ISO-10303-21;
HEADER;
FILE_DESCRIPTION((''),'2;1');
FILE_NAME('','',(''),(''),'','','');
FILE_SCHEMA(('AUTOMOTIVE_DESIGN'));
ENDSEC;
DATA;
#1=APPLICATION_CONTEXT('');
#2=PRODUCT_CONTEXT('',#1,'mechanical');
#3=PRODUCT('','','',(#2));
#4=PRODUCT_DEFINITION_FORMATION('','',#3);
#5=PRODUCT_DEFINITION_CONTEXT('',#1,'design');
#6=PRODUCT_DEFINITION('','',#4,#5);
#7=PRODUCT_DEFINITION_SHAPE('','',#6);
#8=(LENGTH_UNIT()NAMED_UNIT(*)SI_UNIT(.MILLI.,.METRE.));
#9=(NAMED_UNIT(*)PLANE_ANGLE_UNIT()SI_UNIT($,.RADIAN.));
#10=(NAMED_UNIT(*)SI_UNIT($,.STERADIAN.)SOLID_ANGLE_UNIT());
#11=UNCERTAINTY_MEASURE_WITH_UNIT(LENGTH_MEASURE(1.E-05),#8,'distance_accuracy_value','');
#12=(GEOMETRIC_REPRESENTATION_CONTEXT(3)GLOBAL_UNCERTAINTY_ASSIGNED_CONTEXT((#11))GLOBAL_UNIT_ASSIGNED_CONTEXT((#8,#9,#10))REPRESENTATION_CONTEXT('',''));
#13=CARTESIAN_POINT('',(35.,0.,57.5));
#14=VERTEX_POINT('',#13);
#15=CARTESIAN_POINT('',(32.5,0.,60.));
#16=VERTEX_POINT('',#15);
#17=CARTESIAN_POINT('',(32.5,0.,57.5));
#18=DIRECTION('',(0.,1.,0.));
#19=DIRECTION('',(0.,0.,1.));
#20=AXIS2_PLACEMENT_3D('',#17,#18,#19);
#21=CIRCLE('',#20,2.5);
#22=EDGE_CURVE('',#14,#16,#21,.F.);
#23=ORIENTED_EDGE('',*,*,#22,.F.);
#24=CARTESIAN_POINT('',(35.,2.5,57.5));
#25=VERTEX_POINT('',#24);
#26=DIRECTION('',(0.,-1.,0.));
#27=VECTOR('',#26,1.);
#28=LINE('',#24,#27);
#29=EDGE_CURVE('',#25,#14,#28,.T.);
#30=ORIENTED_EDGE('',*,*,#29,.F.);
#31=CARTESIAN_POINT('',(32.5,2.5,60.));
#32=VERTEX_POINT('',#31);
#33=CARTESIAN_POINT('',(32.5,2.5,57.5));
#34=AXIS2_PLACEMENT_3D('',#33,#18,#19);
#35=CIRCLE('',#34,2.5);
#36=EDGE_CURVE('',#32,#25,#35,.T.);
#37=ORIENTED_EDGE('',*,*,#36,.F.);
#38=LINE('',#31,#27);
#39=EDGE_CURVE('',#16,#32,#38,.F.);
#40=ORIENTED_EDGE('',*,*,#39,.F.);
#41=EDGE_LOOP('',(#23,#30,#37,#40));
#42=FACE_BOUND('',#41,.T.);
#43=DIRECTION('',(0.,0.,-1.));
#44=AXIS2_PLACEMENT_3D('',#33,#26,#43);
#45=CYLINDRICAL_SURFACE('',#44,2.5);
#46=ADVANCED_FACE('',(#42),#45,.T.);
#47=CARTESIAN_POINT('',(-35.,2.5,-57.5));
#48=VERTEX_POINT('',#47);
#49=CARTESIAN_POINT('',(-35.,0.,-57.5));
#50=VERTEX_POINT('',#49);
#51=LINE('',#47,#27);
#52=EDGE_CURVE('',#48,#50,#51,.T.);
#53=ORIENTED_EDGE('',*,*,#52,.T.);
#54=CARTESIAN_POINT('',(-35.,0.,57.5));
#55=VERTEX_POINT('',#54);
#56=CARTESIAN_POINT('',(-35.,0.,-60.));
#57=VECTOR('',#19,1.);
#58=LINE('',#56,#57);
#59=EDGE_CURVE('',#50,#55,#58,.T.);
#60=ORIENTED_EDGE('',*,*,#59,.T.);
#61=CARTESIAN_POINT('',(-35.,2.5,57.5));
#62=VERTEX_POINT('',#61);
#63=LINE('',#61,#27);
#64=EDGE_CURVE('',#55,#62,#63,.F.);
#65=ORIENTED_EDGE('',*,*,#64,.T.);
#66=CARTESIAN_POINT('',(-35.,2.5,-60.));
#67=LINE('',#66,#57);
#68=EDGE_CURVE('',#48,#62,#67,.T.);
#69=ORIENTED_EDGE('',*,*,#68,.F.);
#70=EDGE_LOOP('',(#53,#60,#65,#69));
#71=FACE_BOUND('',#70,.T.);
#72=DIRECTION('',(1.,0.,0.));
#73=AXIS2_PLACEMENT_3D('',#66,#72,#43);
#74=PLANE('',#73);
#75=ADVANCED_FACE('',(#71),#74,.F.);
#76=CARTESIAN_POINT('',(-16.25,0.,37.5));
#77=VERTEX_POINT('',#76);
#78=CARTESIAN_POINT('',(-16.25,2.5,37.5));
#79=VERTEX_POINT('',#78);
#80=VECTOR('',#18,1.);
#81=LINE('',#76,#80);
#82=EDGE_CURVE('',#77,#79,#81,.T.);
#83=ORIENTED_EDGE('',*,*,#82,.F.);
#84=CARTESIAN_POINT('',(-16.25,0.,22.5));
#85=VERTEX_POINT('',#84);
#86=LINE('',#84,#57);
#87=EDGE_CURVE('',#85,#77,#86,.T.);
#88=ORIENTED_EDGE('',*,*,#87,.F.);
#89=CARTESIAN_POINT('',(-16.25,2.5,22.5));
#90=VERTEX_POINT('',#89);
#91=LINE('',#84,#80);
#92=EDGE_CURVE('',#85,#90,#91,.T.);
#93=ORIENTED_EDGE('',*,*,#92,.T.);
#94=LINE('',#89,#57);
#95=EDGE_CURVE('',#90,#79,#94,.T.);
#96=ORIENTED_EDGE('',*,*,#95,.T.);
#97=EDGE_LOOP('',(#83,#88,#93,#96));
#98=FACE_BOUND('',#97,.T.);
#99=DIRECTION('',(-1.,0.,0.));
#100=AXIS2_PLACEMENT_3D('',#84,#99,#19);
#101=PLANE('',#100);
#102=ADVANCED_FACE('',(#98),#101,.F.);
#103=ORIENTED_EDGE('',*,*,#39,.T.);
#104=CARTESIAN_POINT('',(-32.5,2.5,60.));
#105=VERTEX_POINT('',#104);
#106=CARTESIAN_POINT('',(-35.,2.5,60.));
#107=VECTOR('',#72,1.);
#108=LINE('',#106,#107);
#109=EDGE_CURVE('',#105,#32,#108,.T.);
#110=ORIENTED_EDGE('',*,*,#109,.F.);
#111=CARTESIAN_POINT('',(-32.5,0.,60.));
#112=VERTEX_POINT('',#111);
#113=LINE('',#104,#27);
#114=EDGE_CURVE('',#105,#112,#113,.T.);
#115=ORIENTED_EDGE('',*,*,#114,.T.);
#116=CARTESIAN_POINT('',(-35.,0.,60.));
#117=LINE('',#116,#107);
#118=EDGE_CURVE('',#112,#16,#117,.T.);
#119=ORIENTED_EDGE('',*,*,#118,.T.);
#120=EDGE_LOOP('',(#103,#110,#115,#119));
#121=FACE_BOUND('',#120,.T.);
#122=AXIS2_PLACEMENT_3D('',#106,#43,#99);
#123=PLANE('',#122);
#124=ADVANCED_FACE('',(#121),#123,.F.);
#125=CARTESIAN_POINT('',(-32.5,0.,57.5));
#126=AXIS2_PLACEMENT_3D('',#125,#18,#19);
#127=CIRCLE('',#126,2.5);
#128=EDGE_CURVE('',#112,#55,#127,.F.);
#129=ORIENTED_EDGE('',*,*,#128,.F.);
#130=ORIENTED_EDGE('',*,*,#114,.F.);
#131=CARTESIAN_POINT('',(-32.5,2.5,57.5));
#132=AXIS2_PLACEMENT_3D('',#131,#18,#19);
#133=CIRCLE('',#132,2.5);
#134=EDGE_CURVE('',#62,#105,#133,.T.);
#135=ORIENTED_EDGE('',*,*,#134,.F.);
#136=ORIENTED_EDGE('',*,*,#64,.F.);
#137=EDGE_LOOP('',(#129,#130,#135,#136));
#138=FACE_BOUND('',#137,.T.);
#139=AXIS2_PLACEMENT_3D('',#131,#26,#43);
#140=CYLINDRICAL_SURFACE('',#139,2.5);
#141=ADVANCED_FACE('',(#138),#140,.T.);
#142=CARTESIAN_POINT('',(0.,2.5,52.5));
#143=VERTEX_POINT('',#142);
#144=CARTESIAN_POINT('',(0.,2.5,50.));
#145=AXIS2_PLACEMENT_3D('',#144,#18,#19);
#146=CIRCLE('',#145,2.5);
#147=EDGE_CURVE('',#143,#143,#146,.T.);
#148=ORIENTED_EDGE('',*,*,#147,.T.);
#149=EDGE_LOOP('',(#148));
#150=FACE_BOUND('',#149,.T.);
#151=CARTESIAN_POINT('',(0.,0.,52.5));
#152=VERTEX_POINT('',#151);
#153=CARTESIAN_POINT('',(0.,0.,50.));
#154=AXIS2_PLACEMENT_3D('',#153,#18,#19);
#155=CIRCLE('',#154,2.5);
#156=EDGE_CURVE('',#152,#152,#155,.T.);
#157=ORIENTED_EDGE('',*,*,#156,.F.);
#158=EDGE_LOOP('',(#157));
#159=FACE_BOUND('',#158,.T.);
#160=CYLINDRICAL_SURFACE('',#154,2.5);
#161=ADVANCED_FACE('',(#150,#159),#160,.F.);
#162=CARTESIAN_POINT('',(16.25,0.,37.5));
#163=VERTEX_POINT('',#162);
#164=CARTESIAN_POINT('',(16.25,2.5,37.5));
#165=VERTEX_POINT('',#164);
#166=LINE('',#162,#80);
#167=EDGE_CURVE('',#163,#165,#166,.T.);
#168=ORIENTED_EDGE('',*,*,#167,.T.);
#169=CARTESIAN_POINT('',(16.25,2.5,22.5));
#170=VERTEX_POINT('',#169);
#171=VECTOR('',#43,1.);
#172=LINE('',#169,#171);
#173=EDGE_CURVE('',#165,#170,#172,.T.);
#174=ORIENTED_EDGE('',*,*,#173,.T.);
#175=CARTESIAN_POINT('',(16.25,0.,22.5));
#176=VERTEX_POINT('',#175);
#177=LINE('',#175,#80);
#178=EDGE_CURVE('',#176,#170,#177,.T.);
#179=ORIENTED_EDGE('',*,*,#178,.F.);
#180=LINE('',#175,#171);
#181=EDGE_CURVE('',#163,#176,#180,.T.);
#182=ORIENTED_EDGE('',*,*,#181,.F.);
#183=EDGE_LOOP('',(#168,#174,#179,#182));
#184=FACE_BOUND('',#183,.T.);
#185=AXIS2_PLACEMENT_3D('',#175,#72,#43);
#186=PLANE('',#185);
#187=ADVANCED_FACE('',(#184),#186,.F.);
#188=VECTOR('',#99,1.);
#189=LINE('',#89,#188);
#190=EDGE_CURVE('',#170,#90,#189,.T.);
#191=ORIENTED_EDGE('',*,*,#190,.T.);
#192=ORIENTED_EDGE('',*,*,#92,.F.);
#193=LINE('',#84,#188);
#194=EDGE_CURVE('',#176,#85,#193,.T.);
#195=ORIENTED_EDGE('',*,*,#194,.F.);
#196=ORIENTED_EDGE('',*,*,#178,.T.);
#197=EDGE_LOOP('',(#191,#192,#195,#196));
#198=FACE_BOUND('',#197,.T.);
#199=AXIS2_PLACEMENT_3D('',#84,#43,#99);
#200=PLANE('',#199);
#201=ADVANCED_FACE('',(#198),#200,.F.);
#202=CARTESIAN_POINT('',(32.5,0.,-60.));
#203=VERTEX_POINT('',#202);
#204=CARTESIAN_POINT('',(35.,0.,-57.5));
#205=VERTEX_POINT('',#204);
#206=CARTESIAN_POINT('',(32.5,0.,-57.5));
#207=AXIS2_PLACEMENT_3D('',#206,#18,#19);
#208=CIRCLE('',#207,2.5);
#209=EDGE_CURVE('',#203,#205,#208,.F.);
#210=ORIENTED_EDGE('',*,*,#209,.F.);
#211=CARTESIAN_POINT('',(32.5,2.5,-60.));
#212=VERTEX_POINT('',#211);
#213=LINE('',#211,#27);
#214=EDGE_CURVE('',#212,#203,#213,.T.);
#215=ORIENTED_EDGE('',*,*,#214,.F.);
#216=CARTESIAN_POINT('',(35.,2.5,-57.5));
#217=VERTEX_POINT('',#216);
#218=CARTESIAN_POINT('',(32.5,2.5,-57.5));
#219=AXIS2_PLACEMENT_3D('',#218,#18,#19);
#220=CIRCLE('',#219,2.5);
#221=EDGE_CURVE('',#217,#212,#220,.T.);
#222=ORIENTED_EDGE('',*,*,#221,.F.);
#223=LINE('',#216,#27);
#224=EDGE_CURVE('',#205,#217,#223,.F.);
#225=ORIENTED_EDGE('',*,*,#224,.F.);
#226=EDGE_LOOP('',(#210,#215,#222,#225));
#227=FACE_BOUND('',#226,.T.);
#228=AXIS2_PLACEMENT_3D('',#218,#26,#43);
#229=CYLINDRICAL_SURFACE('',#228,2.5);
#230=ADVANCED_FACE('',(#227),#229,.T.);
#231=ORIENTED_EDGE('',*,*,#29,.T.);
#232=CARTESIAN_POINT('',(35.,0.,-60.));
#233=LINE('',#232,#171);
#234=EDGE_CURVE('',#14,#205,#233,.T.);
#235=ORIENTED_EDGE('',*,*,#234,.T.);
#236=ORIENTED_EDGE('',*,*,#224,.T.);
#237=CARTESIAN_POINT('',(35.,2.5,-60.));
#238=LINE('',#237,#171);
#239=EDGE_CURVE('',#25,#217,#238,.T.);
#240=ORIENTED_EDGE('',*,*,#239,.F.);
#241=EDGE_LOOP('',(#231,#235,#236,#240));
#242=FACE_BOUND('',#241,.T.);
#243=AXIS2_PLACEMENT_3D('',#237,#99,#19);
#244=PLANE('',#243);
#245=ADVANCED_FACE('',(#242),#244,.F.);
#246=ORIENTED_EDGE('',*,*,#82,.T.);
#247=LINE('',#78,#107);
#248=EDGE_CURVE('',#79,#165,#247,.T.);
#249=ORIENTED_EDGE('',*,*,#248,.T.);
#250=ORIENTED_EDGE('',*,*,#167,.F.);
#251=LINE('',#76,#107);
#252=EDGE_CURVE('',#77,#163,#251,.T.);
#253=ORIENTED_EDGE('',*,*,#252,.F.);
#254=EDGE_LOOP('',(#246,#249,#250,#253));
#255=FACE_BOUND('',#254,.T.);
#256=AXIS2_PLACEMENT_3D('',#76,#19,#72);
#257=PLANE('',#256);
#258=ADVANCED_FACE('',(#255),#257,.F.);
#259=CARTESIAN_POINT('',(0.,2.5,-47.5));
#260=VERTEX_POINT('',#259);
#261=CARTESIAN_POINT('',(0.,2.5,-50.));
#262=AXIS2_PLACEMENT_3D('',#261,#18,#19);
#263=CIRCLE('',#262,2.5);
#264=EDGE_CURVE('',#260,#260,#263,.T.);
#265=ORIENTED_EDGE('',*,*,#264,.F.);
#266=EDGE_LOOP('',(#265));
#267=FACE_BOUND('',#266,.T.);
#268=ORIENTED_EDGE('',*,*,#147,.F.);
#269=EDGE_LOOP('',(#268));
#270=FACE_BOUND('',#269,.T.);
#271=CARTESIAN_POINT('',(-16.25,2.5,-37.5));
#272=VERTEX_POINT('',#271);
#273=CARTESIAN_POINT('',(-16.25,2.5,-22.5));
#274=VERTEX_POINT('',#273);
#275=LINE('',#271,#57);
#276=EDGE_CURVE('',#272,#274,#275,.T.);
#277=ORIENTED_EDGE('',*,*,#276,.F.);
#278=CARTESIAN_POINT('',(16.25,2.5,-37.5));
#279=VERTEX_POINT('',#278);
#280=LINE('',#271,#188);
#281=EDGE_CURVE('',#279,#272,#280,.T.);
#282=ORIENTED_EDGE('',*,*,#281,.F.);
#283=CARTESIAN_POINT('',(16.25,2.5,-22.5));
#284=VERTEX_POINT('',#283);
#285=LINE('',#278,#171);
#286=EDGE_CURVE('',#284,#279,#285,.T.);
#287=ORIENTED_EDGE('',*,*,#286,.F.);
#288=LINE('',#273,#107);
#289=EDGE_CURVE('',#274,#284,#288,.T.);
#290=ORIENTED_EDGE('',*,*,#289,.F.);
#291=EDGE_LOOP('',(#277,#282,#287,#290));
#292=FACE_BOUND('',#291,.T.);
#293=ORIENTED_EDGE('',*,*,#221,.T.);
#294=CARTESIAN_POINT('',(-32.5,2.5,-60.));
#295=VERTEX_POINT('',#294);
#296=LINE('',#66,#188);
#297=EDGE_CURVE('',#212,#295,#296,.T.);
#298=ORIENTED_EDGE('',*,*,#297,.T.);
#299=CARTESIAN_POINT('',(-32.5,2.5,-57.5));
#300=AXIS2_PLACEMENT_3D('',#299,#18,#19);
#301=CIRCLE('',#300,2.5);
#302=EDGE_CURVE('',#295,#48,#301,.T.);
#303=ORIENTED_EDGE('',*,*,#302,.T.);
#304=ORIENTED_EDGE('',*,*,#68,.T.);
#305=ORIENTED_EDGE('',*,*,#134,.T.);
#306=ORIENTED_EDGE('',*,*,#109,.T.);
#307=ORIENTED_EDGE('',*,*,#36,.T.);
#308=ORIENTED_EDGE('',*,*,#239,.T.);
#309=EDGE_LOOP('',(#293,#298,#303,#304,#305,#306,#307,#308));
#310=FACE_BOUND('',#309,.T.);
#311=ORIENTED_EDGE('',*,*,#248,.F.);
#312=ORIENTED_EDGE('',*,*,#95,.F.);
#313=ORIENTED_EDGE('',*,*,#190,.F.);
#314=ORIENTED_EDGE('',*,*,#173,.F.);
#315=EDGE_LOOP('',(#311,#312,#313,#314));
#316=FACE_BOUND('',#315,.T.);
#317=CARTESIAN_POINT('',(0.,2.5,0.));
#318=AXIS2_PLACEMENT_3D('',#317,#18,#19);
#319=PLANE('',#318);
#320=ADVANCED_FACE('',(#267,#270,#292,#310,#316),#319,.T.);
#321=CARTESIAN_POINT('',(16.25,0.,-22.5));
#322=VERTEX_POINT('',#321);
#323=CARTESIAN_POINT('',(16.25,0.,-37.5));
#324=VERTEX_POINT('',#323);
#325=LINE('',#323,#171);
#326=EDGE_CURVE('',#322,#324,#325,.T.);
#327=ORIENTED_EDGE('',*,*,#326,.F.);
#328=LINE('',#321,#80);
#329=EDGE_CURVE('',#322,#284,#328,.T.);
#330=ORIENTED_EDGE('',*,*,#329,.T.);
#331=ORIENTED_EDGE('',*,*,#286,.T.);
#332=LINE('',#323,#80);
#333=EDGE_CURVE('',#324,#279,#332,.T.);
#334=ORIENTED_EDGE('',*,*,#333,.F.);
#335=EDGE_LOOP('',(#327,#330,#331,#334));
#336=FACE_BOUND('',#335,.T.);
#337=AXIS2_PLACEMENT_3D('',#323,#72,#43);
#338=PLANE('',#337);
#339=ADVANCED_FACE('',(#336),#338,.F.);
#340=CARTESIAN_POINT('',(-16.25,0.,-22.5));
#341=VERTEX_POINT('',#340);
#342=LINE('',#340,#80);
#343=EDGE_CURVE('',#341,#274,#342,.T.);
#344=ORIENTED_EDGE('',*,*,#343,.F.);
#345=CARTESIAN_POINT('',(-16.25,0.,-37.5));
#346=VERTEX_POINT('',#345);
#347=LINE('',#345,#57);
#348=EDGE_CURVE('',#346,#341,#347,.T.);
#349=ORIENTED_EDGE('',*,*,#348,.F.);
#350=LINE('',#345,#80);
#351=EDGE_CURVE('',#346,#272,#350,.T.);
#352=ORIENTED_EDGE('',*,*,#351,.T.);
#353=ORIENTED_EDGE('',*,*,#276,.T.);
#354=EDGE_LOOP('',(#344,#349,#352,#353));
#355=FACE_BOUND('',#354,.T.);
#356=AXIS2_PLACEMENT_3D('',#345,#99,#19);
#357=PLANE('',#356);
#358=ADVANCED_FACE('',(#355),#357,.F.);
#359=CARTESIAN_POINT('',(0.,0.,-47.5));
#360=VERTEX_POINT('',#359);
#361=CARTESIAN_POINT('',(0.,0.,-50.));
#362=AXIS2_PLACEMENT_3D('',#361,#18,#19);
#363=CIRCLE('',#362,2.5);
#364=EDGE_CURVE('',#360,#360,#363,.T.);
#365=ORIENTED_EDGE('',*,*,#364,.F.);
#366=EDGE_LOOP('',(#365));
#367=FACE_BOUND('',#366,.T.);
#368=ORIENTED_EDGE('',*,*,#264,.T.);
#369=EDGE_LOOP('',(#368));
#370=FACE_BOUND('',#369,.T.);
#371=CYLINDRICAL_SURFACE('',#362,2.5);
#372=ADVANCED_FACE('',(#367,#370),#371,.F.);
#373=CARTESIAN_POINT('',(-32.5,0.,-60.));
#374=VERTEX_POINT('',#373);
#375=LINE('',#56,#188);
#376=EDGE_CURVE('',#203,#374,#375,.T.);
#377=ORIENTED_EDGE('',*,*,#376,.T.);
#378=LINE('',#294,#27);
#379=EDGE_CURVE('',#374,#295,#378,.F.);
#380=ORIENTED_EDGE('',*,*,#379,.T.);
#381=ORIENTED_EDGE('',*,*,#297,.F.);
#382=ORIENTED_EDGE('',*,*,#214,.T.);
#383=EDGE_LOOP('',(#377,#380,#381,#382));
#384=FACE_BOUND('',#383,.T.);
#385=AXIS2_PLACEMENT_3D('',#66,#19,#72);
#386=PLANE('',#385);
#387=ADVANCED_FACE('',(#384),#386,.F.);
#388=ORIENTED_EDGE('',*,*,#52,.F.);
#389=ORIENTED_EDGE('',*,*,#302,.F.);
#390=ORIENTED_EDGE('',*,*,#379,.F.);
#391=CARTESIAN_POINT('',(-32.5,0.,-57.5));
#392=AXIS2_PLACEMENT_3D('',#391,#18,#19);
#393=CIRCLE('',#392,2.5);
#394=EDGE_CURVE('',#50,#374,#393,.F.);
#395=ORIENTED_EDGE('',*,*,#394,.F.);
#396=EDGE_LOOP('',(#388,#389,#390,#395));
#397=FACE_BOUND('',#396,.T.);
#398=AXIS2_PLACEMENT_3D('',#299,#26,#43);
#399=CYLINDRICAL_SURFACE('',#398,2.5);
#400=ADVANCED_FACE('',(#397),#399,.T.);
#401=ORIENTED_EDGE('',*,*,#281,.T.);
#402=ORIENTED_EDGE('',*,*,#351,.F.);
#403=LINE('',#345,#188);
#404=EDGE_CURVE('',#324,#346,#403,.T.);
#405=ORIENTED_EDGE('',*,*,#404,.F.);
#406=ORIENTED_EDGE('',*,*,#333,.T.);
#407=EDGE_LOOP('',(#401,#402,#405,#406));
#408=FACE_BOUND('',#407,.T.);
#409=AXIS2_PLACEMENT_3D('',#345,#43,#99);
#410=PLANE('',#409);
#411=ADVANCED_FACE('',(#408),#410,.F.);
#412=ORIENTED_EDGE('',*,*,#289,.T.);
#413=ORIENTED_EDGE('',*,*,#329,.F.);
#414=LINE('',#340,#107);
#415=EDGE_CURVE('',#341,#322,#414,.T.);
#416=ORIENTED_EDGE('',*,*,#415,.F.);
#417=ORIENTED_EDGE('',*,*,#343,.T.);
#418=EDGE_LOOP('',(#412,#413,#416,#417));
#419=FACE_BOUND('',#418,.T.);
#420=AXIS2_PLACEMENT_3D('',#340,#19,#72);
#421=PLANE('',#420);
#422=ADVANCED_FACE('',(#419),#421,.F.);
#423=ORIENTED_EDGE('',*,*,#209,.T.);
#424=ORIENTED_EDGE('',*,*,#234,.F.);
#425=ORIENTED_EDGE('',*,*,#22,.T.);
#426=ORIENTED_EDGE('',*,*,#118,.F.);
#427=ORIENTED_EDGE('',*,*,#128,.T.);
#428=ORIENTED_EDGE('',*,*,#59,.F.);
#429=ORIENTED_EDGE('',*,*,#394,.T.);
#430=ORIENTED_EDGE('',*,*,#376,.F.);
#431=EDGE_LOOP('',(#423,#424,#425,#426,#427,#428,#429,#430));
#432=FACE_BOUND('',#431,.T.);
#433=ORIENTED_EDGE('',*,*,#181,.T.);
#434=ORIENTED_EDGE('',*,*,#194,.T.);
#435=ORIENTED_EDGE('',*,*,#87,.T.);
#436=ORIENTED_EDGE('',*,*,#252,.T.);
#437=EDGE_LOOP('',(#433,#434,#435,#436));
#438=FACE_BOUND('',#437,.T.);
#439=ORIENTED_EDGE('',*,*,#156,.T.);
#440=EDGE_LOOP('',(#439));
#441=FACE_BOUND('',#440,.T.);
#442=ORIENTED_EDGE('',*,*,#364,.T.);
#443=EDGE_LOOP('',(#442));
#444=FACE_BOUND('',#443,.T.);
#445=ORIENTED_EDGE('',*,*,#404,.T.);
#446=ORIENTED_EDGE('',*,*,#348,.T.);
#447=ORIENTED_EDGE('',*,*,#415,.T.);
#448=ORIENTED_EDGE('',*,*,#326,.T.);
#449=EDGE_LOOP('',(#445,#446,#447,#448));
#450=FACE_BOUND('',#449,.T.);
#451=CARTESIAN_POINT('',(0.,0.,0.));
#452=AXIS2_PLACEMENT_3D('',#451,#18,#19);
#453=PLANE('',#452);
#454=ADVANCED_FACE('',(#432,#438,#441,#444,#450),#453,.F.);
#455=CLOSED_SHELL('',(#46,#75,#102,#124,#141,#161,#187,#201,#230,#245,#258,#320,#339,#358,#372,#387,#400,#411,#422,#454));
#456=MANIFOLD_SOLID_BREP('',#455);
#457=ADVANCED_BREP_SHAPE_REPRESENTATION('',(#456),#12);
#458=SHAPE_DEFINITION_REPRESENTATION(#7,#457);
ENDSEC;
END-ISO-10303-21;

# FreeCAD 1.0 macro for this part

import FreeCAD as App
import Part
import Sketcher
from FreeCAD import Vector
Q = App.Units.Quantity


def edges_at(feature, points):
    """Names of the edges that pass closest to the given points."""
    edges = feature.Shape.Edges
    near = lambda p: min(range(len(edges)), key=lambda i: edges[i].distToShape(Part.Vertex(*p))[0])
    return sorted({f"Edge{near(p) + 1}" for p in points})


def add_polygon(sketch, points):
    """Adds a closed chain of lines whose ends are joined by coincident constraints."""
    first, n = sketch.GeometryCount, len(points)
    for a, b in zip(points, points[1:] + points[:1]):
        sketch.addGeometry(Part.LineSegment(App.Vector(*a, 0), App.Vector(*b, 0)), False)
    for i in range(n):
        sketch.addConstraint(Sketcher.Constraint("Coincident", first + i, 2, first + (i + 1) % n, 1))

doc = App.newDocument("Part")
body = doc.addObject("PartDesign::Body", "Body")

# Sketch on XZ plane
sketch1 = body.newObject("Sketcher::SketchObject", "Sketch")
sketch1.AttachmentSupport = (doc.getObject("XZ_Plane"), [""])
sketch1.MapMode = "FlatFace"
add_polygon(sketch1, [(-35, -60), (-35, 60), (35, 60), (35, -60)])  # lines 0-3
sketch1.addConstraint([
    Sketcher.Constraint("Vertical", 0),
    Sketcher.Constraint("Horizontal", 1),
    Sketcher.Constraint("Vertical", 2),
    Sketcher.Constraint("Horizontal", 3),
    Sketcher.Constraint("Symmetric", 0, 2, 2, 2, -1, 1),
    Sketcher.Constraint("DistanceX", 1, 1, 1, 2, Q("70 mm")),
    Sketcher.Constraint("DistanceY", 0, 1, 0, 2, Q("120 mm")),
])
pad1 = body.newObject("PartDesign::Pad", "Pad")
pad1.Profile = sketch1
pad1.Length = 2.5
pad1.Reversed = True
doc.recompute()

fillet = body.newObject("PartDesign::Fillet", "Fillet")
fillet.Base = (pad1, edges_at(pad1, [
    (35, 1.25, 60),
    (-35, 1.25, 60),
    (-35, 1.25, -60),
    (35, 1.25, -60),
]))
fillet.Radius = 2.5

# Sketch on XZ plane
sketch2 = body.newObject("Sketcher::SketchObject", "Sketch001")
sketch2.AttachmentSupport = (doc.getObject("XZ_Plane"), [""])
sketch2.MapMode = "FlatFace"
sketch2.AttachmentOffset = App.Placement(Vector(0, 0, -2.5), App.Rotation())
add_polygon(sketch2, [(-16, -38), (-16, -22), (16, -22), (16, -38)])  # lines 0-3
add_polygon(sketch2, [(-16, 22), (-16, 38), (16, 38), (16, 22)])  # lines 4-7
sketch2.addConstraint([
    Sketcher.Constraint("Vertical", 0),
    Sketcher.Constraint("Horizontal", 1),
    Sketcher.Constraint("Vertical", 2),
    Sketcher.Constraint("Horizontal", 3),
    Sketcher.Constraint("Vertical", 4),
    Sketcher.Constraint("Horizontal", 5),
    Sketcher.Constraint("Vertical", 6),
    Sketcher.Constraint("Horizontal", 7),
    Sketcher.Constraint("Symmetric", 2, 2, 4, 2, -1, 1),
    Sketcher.Constraint("Symmetric", 0, 2, 6, 2, -1, 1),
    Sketcher.Constraint("Vertical", 3, 2, 4, 2),
    Sketcher.Constraint("DistanceY", 0, 1, 0, 2, Q("15 mm")),
    Sketcher.Constraint("DistanceX", 1, 1, 1, 2, Q("32.5 mm")),
    Sketcher.Constraint("DistanceY", 0, 2, 4, 2, Q("60 mm")),
])
pocket1 = body.newObject("PartDesign::Pocket", "Pocket")
pocket1.Profile = sketch2
pocket1.Type = "ThroughAll"
pocket1.Reversed = True

# Sketch on XZ plane
sketch3 = body.newObject("Sketcher::SketchObject", "Sketch002")
sketch3.AttachmentSupport = (doc.getObject("XZ_Plane"), [""])
sketch3.MapMode = "FlatFace"
sketch3.AttachmentOffset = App.Placement(Vector(0, 0, -2.5), App.Rotation())
sketch3.addGeometry([
    Part.Circle(Vector(0, -50, 0), Vector(0, 0, 1), 2.5),
    Part.Circle(Vector(0, 50, 0), Vector(0, 0, 1), 2.5),
], False)
sketch3.addConstraint([
    Sketcher.Constraint("Equal", 0, 1),
    Sketcher.Constraint("Symmetric", 0, 3, 1, 3, -1, 1),
    Sketcher.Constraint("PointOnObject", 0, 3, -2),
    Sketcher.Constraint("Diameter", 0, Q("5 mm")),
    Sketcher.Constraint("DistanceY", 0, 3, -1, 1, Q("50 mm")),
])
pocket2 = body.newObject("PartDesign::Pocket", "Pocket001")
pocket2.Profile = sketch3
pocket2.Type = "ThroughAll"
pocket2.Reversed = True

doc.recompute()
